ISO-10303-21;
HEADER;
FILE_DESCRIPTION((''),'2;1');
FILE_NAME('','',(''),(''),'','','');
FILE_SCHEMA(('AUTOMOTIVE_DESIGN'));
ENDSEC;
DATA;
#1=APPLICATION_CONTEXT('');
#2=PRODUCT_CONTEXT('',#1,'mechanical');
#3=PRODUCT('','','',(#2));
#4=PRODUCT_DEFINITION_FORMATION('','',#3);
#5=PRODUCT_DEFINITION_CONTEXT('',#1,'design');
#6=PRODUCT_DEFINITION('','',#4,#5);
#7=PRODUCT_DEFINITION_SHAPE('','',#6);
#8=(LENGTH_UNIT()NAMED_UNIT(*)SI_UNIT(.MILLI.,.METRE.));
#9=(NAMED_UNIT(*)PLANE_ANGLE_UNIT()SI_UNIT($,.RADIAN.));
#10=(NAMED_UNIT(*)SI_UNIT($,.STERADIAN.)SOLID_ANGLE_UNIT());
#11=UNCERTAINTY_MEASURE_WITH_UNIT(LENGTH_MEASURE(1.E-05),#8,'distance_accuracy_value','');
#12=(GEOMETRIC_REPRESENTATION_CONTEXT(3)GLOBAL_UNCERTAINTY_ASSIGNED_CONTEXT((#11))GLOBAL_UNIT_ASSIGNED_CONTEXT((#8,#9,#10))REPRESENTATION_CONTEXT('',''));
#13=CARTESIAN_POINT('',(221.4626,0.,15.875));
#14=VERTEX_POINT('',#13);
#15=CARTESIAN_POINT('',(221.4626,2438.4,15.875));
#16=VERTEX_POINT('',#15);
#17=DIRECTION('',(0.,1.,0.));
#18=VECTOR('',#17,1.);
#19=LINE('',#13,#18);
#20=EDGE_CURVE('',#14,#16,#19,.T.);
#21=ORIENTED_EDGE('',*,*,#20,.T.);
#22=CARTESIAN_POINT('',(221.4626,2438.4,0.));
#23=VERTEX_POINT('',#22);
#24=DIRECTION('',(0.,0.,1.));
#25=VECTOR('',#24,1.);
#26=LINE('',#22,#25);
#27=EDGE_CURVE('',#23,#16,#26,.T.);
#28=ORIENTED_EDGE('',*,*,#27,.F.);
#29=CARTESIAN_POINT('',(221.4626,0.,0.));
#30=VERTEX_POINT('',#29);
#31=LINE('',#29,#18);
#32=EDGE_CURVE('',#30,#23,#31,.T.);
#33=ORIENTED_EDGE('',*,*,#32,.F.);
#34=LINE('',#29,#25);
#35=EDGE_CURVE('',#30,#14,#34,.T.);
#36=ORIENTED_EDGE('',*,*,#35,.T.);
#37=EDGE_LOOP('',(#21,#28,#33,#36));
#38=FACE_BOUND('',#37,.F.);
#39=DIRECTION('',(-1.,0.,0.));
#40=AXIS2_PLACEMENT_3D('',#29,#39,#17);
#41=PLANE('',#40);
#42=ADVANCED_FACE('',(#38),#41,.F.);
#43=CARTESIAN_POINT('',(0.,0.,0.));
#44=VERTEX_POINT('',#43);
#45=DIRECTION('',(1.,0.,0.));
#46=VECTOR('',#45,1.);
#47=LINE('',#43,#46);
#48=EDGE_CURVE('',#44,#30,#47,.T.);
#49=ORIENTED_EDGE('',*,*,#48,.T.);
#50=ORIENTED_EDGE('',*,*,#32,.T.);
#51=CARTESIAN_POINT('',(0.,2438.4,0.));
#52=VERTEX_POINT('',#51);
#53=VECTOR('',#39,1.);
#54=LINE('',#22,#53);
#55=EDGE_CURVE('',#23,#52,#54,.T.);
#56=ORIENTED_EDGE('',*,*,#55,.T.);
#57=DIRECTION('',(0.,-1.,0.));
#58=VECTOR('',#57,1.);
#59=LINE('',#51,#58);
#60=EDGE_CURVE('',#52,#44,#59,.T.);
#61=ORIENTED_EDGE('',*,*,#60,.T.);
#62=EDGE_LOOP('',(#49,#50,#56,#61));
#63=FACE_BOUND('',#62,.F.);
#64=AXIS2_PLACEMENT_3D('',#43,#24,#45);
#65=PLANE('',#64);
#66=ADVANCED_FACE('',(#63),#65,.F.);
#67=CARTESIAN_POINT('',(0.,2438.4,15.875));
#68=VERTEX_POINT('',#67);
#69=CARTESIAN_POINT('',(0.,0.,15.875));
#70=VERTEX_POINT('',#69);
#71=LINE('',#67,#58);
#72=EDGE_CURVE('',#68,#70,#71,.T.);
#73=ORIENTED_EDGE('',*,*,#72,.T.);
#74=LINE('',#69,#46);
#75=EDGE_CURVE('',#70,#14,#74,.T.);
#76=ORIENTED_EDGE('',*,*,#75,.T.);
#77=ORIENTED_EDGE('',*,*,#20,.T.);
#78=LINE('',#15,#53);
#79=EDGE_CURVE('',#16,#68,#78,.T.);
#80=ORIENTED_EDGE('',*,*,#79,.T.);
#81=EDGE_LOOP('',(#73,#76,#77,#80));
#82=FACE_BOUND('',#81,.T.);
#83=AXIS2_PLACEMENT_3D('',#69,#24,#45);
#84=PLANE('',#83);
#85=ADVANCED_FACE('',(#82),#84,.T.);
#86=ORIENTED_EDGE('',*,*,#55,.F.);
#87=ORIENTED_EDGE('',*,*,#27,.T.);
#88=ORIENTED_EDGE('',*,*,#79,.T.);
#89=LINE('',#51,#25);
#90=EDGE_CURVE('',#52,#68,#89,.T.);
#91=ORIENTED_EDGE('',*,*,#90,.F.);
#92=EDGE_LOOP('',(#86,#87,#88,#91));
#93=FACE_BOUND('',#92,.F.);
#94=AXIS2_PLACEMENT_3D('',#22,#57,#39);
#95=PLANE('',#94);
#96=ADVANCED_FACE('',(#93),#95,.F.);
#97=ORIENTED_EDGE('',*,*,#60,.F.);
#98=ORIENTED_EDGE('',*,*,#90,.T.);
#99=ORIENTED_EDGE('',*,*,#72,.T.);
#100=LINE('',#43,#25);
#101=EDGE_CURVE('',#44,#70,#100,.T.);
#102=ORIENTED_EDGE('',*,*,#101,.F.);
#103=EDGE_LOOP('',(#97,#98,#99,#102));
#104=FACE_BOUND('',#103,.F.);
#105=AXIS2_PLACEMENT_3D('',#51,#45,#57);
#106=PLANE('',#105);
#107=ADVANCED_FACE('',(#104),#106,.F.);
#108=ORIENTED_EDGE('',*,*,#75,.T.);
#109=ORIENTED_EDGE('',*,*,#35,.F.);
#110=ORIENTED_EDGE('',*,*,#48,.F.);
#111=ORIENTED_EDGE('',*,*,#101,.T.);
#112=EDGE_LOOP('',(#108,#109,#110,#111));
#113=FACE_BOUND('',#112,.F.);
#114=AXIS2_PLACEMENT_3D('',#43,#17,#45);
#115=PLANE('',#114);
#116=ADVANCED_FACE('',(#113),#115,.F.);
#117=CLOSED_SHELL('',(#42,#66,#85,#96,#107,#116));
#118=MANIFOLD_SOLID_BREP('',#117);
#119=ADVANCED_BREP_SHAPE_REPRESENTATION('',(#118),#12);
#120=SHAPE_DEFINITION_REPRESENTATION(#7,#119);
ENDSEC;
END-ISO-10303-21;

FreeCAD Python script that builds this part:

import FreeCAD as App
import Part
import Sketcher

V = App.Vector
Q = App.Units.Quantity


def add_polygon(sketch, points):
    """Adds a closed chain of lines whose ends are joined by coincident constraints."""
    first, n = sketch.GeometryCount, len(points)
    for a, b in zip(points, points[1:] + points[:1]):
        sketch.addGeometry(Part.LineSegment(App.Vector(*a, 0), App.Vector(*b, 0)), False)
    for i in range(n):
        sketch.addConstraint(Sketcher.Constraint("Coincident", first + i, 2, first + (i + 1) % n, 1))

doc = App.newDocument("Part")
body = doc.addObject("PartDesign::Body", "Body")

# Sketch on XY plane
sketch1 = body.newObject("Sketcher::SketchObject", "Sketch")
sketch1.AttachmentSupport = (doc.getObject("XY_Plane"), [""])
sketch1.MapMode = "FlatFace"
add_polygon(sketch1, [(0, 2438), (0, 0), (221, 0), (221, 2438)])  # lines 0-3
sketch1.addConstraint([
    Sketcher.Constraint("Vertical", 0),
    Sketcher.Constraint("Horizontal", 1),
    Sketcher.Constraint("Vertical", 2),
    Sketcher.Constraint("Horizontal", 3),
    Sketcher.Constraint("Coincident", 0, 2, -1, 1),
    Sketcher.Constraint("DistanceY", 0, 2, 0, 1, Q("96 in")),
    Sketcher.Constraint("DistanceX", 1, 1, 1, 2, Q("8.719 in")),
])
pad1 = body.newObject("PartDesign::Pad", "Pad")
pad1.Profile = sketch1
pad1.Length = Q("0.625 in")

doc.recompute()
